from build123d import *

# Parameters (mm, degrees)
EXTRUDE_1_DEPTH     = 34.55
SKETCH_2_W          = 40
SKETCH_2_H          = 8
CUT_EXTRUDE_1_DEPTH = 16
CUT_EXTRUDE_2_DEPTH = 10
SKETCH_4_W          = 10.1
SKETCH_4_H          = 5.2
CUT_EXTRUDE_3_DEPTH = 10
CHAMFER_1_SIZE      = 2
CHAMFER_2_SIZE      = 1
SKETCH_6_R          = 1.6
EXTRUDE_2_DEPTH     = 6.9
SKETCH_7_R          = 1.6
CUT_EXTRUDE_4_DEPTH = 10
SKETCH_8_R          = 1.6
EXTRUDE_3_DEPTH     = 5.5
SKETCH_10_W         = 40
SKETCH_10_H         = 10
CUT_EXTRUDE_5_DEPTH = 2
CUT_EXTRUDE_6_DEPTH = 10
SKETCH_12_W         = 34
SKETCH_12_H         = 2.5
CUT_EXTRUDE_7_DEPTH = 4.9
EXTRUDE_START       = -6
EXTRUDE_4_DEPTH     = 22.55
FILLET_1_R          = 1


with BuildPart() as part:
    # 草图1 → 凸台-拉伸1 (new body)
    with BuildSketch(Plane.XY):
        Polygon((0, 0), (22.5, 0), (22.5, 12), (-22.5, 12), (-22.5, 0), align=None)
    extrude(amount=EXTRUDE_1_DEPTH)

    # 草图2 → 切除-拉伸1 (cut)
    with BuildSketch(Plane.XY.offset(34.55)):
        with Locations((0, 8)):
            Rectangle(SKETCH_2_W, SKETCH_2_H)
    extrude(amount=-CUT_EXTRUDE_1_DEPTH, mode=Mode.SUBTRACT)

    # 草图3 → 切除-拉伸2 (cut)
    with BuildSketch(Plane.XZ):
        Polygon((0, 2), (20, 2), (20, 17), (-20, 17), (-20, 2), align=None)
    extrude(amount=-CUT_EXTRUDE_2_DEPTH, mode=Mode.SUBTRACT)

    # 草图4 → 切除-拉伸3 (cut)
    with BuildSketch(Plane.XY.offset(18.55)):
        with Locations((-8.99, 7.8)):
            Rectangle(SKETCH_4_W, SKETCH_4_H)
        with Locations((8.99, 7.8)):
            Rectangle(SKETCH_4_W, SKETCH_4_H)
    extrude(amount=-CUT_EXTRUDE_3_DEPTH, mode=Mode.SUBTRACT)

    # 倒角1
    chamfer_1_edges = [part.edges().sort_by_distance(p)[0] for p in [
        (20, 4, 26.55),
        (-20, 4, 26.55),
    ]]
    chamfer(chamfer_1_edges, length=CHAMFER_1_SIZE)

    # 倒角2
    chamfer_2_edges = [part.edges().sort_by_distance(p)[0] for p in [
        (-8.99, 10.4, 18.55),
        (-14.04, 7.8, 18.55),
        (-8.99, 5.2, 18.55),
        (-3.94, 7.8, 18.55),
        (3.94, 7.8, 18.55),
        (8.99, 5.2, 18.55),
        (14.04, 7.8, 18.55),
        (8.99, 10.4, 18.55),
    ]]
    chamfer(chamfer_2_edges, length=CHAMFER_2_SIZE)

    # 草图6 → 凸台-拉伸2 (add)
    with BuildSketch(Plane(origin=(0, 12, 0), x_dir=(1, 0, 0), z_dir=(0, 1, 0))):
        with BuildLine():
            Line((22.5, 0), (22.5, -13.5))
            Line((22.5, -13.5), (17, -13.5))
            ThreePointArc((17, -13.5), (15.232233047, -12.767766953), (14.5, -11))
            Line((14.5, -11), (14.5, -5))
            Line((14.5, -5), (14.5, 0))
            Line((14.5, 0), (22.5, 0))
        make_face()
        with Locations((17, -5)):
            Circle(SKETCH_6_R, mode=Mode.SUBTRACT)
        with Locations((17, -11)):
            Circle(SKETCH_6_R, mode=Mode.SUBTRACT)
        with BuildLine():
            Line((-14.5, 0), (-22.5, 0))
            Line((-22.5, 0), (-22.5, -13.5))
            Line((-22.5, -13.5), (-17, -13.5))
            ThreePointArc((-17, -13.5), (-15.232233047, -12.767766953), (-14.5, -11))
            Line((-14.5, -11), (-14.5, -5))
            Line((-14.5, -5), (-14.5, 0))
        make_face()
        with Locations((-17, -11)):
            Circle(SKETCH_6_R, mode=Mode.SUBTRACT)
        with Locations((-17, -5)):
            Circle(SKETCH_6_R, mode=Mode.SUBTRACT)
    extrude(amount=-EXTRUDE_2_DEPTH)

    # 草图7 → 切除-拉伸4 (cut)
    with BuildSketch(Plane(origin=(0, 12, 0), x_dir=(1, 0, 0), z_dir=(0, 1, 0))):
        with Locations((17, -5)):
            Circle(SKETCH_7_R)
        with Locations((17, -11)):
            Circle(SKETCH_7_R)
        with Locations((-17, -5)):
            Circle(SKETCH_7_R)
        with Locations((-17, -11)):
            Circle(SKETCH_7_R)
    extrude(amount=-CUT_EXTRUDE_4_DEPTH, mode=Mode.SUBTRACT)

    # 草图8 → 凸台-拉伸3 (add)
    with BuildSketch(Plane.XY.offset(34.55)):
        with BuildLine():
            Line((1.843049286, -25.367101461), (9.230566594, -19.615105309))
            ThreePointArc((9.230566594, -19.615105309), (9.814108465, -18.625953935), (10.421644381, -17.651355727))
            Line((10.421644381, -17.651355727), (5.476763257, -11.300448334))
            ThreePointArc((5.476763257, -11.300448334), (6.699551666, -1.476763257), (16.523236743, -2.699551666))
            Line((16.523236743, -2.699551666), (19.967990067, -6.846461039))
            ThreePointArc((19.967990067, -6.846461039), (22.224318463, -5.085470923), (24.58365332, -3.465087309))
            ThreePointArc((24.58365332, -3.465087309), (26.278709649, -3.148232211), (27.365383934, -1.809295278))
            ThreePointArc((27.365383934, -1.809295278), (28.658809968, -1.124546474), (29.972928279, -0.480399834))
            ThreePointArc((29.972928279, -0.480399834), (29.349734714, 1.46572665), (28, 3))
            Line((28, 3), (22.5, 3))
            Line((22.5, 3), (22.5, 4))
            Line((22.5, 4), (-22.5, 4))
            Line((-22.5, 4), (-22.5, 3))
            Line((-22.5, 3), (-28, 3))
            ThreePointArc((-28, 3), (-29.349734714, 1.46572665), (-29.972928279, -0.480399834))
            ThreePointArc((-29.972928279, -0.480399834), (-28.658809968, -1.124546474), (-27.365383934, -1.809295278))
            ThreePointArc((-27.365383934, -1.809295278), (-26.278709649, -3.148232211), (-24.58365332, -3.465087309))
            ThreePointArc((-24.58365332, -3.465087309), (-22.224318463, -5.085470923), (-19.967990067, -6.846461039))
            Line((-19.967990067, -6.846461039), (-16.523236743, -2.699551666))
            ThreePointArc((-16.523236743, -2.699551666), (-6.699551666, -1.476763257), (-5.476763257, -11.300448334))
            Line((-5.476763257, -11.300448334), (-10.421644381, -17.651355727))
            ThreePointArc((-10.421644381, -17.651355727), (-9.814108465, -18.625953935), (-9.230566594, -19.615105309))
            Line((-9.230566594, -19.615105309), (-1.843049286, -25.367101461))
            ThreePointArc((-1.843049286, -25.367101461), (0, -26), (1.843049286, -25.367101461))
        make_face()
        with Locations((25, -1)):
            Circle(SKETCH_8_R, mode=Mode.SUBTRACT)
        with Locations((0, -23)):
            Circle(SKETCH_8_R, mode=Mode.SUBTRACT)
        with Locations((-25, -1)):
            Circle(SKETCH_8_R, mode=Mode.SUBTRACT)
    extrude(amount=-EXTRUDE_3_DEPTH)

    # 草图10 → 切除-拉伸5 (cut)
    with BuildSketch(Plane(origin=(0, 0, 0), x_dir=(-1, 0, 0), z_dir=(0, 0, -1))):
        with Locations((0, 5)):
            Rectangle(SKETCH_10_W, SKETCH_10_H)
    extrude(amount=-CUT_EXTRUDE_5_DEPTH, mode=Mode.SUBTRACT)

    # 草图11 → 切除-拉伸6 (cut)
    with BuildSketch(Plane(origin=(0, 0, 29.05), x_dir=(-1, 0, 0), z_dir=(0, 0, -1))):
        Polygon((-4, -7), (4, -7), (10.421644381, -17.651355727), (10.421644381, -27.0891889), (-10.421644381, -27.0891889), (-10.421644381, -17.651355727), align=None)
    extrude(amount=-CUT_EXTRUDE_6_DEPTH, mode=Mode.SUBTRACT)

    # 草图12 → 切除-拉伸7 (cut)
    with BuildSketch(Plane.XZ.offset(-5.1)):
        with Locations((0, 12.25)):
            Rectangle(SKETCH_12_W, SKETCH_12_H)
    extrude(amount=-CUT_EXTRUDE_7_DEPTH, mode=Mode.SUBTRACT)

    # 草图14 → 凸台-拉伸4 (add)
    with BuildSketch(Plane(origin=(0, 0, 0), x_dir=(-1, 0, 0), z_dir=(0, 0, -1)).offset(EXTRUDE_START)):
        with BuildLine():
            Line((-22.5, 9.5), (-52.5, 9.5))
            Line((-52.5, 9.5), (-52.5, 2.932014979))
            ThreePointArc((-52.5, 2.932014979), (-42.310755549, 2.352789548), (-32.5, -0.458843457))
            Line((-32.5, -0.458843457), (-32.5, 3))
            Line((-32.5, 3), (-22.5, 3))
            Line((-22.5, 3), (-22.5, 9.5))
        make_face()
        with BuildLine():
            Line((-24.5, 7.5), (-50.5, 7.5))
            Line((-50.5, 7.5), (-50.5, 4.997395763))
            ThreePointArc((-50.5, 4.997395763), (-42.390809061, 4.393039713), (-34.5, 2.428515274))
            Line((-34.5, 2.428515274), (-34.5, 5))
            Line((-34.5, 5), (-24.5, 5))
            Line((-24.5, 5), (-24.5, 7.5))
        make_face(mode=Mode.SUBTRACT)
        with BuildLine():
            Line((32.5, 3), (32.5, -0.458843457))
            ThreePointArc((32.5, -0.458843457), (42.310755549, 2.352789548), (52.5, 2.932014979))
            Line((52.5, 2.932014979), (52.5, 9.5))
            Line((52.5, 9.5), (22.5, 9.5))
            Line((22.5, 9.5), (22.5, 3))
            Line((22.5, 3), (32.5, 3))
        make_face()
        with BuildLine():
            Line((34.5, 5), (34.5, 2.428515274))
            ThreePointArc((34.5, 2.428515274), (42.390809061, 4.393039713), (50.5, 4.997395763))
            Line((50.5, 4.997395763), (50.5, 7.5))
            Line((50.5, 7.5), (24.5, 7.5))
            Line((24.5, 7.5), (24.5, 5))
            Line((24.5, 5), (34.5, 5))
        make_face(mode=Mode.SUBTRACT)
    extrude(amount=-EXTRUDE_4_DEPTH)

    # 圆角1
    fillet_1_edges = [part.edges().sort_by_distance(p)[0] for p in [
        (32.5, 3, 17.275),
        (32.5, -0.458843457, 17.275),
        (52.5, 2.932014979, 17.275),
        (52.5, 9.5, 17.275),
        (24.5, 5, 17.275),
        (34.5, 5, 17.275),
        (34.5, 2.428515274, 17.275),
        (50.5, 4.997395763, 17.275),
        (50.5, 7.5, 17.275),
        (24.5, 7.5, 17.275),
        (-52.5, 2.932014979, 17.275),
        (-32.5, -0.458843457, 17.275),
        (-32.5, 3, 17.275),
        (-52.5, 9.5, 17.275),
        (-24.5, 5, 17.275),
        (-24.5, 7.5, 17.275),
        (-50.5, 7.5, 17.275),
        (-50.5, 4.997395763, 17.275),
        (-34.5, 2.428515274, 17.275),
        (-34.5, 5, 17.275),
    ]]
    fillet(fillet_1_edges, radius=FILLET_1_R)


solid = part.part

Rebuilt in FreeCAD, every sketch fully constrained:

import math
import FreeCAD as App
import Part
import Sketcher
from FreeCAD import Vector
Q = App.Units.Quantity


def edges_at(feature, points):
    """Names of the edges that pass closest to the given points."""
    edges = feature.Shape.Edges
    near = lambda p: min(range(len(edges)), key=lambda i: edges[i].distToShape(Part.Vertex(*p))[0])
    return sorted({f"Edge{near(p) + 1}" for p in points})

doc = App.newDocument("Part")
body = doc.addObject("PartDesign::Body", "Body")

# Sketch on XY plane
sketch1 = body.newObject("Sketcher::SketchObject", "Sketch")
sketch1.AttachmentSupport = (doc.getObject("XY_Plane"), [""])
sketch1.MapMode = "FlatFace"
sketch1.addGeometry(Part.LineSegment(Vector(22, 0, 0), Vector(22, 12, 0)), False)
sketch1.addGeometry(Part.LineSegment(Vector(22, 12, 0), Vector(-22, 12, 0)), False)
sketch1.addGeometry(Part.LineSegment(Vector(-22, 12, 0), Vector(-22, 0, 0)), False)
sketch1.addGeometry(Part.LineSegment(Vector(-22, 0, 0), Vector(22, 0, 0)), False)
sketch1.addConstraint(Sketcher.Constraint("Coincident", 0, 2, 1, 1))
sketch1.addConstraint(Sketcher.Constraint("Coincident", 1, 2, 2, 1))
sketch1.addConstraint(Sketcher.Constraint("Coincident", 2, 2, 3, 1))
sketch1.addConstraint(Sketcher.Constraint("Coincident", 3, 2, 0, 1))
sketch1.addConstraint(Sketcher.Constraint("Vertical", 0))
sketch1.addConstraint(Sketcher.Constraint("Horizontal", 1))
sketch1.addConstraint(Sketcher.Constraint("Vertical", 2))
sketch1.addConstraint(Sketcher.Constraint("Horizontal", 3))
sketch1.addConstraint(Sketcher.Constraint("Symmetric", 2, 2, 3, 2, -1, 1))
sketch1.addConstraint(Sketcher.Constraint("DistanceX", 1, 2, 1, 1, Q("45 mm")))
sketch1.addConstraint(Sketcher.Constraint("DistanceY", 0, 1, 0, 2, Q("12 mm")))
pad1 = body.newObject("PartDesign::Pad", "Pad")
pad1.Profile = sketch1
pad1.Length = 34.55

# Sketch on XY plane
sketch2 = body.newObject("Sketcher::SketchObject", "Sketch001")
sketch2.AttachmentSupport = (doc.getObject("XY_Plane"), [""])
sketch2.MapMode = "FlatFace"
sketch2.AttachmentOffset = App.Placement(Vector(0, 0, 34.55), App.Rotation())
sketch2.addGeometry(Part.LineSegment(Vector(-20, 12, 0), Vector(-20, 4, 0)), False)
sketch2.addGeometry(Part.LineSegment(Vector(-20, 4, 0), Vector(20, 4, 0)), False)
sketch2.addGeometry(Part.LineSegment(Vector(20, 4, 0), Vector(20, 12, 0)), False)
sketch2.addGeometry(Part.LineSegment(Vector(20, 12, 0), Vector(-20, 12, 0)), False)
sketch2.addConstraint(Sketcher.Constraint("Coincident", 0, 2, 1, 1))
sketch2.addConstraint(Sketcher.Constraint("Coincident", 1, 2, 2, 1))
sketch2.addConstraint(Sketcher.Constraint("Coincident", 2, 2, 3, 1))
sketch2.addConstraint(Sketcher.Constraint("Coincident", 3, 2, 0, 1))
sketch2.addConstraint(Sketcher.Constraint("Vertical", 0))
sketch2.addConstraint(Sketcher.Constraint("Horizontal", 1))
sketch2.addConstraint(Sketcher.Constraint("Vertical", 2))
sketch2.addConstraint(Sketcher.Constraint("Horizontal", 3))
sketch2.addConstraint(Sketcher.Constraint("DistanceX", 1, 1, 1, 2, Q("40 mm")))
sketch2.addConstraint(Sketcher.Constraint("DistanceY", 0, 2, 0, 1, Q("8 mm")))
sketch2.addConstraint(Sketcher.Constraint("DistanceX", 0, 2, -1, 1, Q("20 mm")))
sketch2.addConstraint(Sketcher.Constraint("DistanceY", -1, 1, 0, 2, Q("4 mm")))
pocket1 = body.newObject("PartDesign::Pocket", "Pocket")
pocket1.Profile = sketch2
pocket1.Length = 16

# Sketch on XZ plane
sketch3 = body.newObject("Sketcher::SketchObject", "Sketch002")
sketch3.AttachmentSupport = (doc.getObject("XZ_Plane"), [""])
sketch3.MapMode = "FlatFace"
sketch3.addGeometry(Part.LineSegment(Vector(20, 2, 0), Vector(20, 17, 0)), False)
sketch3.addGeometry(Part.LineSegment(Vector(20, 17, 0), Vector(-20, 17, 0)), False)
sketch3.addGeometry(Part.LineSegment(Vector(-20, 17, 0), Vector(-20, 2, 0)), False)
sketch3.addGeometry(Part.LineSegment(Vector(-20, 2, 0), Vector(20, 2, 0)), False)
sketch3.addConstraint(Sketcher.Constraint("Coincident", 0, 2, 1, 1))
sketch3.addConstraint(Sketcher.Constraint("Coincident", 1, 2, 2, 1))
sketch3.addConstraint(Sketcher.Constraint("Coincident", 2, 2, 3, 1))
sketch3.addConstraint(Sketcher.Constraint("Coincident", 3, 2, 0, 1))
sketch3.addConstraint(Sketcher.Constraint("Vertical", 0))
sketch3.addConstraint(Sketcher.Constraint("Horizontal", 1))
sketch3.addConstraint(Sketcher.Constraint("Vertical", 2))
sketch3.addConstraint(Sketcher.Constraint("Horizontal", 3))
sketch3.addConstraint(Sketcher.Constraint("DistanceX", 1, 2, 1, 1, Q("40 mm")))
sketch3.addConstraint(Sketcher.Constraint("DistanceY", 0, 1, 0, 2, Q("15 mm")))
sketch3.addConstraint(Sketcher.Constraint("DistanceX", -1, 1, 0, 2, Q("20 mm")))
sketch3.addConstraint(Sketcher.Constraint("DistanceY", -1, 1, 0, 2, Q("17 mm")))
pocket2 = body.newObject("PartDesign::Pocket", "Pocket001")
pocket2.Profile = sketch3
pocket2.Length = 10

# Sketch on XY plane
sketch4 = body.newObject("Sketcher::SketchObject", "Sketch003")
sketch4.AttachmentSupport = (doc.getObject("XY_Plane"), [""])
sketch4.MapMode = "FlatFace"
sketch4.AttachmentOffset = App.Placement(Vector(0, 0, 18.55), App.Rotation())
sketch4.addGeometry(Part.LineSegment(Vector(-14, 10, 0), Vector(-14, 5, 0)), False)
sketch4.addGeometry(Part.LineSegment(Vector(-14, 5, 0), Vector(-4, 5, 0)), False)
sketch4.addGeometry(Part.LineSegment(Vector(-4, 5, 0), Vector(-4, 10, 0)), False)
sketch4.addGeometry(Part.LineSegment(Vector(-4, 10, 0), Vector(-14, 10, 0)), False)
sketch4.addGeometry(Part.LineSegment(Vector(4, 10, 0), Vector(4, 5, 0)), False)
sketch4.addGeometry(Part.LineSegment(Vector(4, 5, 0), Vector(14, 5, 0)), False)
sketch4.addGeometry(Part.LineSegment(Vector(14, 5, 0), Vector(14, 10, 0)), False)
sketch4.addGeometry(Part.LineSegment(Vector(14, 10, 0), Vector(4, 10, 0)), False)
sketch4.addConstraint(Sketcher.Constraint("Coincident", 0, 2, 1, 1))
sketch4.addConstraint(Sketcher.Constraint("Coincident", 1, 2, 2, 1))
sketch4.addConstraint(Sketcher.Constraint("Coincident", 2, 2, 3, 1))
sketch4.addConstraint(Sketcher.Constraint("Coincident", 3, 2, 0, 1))
sketch4.addConstraint(Sketcher.Constraint("Coincident", 4, 2, 5, 1))
sketch4.addConstraint(Sketcher.Constraint("Coincident", 5, 2, 6, 1))
sketch4.addConstraint(Sketcher.Constraint("Coincident", 6, 2, 7, 1))
sketch4.addConstraint(Sketcher.Constraint("Coincident", 7, 2, 4, 1))
sketch4.addConstraint(Sketcher.Constraint("Vertical", 0))
sketch4.addConstraint(Sketcher.Constraint("Horizontal", 1))
sketch4.addConstraint(Sketcher.Constraint("Vertical", 2))
sketch4.addConstraint(Sketcher.Constraint("Horizontal", 3))
sketch4.addConstraint(Sketcher.Constraint("Vertical", 4))
sketch4.addConstraint(Sketcher.Constraint("Horizontal", 5))
sketch4.addConstraint(Sketcher.Constraint("Vertical", 6))
sketch4.addConstraint(Sketcher.Constraint("Horizontal", 7))
sketch4.addConstraint(Sketcher.Constraint("Symmetric", 1, 2, 4, 2, -2))
sketch4.addConstraint(Sketcher.Constraint("Symmetric", 3, 2, 6, 2, -2))
sketch4.addConstraint(Sketcher.Constraint("DistanceX", 1, 1, 1, 2, Q("10.1 mm")))
sketch4.addConstraint(Sketcher.Constraint("DistanceY", 0, 2, 0, 1, Q("5.2 mm")))
sketch4.addConstraint(Sketcher.Constraint("DistanceY", -1, 1, 0, 2, Q("5.2 mm")))
sketch4.addConstraint(Sketcher.Constraint("DistanceX", 0, 2, -1, 1, Q("14.04 mm")))
pocket3 = body.newObject("PartDesign::Pocket", "Pocket002")
pocket3.Profile = sketch4
pocket3.Length = 10
doc.recompute()

chamfer = body.newObject("PartDesign::Chamfer", "Chamfer")
chamfer.Base = (pocket3, edges_at(pocket3, [(20, 4, 26.55), (-20, 4, 26.55)]))
chamfer.Size = 2
doc.recompute()

chamfer2 = body.newObject("PartDesign::Chamfer", "Chamfer001")
chamfer2.Base = (chamfer, edges_at(chamfer, [
    (-8.99, 10.4, 18.55),
    (-14.04, 7.8, 18.55),
    (-8.99, 5.2, 18.55),
    (-3.94, 7.8, 18.55),
    (3.94, 7.8, 18.55),
    (8.99, 5.2, 18.55),
    (14.04, 7.8, 18.55),
    (8.99, 10.4, 18.55),
]))
chamfer2.Size = 1

# Sketch on XZ plane
sketch5 = body.newObject("Sketcher::SketchObject", "Sketch004")
sketch5.AttachmentSupport = (doc.getObject("XZ_Plane"), [""])
sketch5.MapMode = "FlatFace"
sketch5.AttachmentOffset = App.Placement(Vector(0, 0, -12), App.Rotation())
sketch5.addGeometry(Part.LineSegment(Vector(22.5, 13.5, 0), Vector(22.5, 0, 0)), False)
sketch5.addGeometry(Part.LineSegment(Vector(22.5, 0, 0), Vector(14.5, 0, 0)), False)
sketch5.addGeometry(Part.LineSegment(Vector(14.5, 0, 0), Vector(14.5, 11, 0)), False)
sketch5.addGeometry(Part.ArcOfCircle(Part.Circle(Vector(17, 11, 0), Vector(0, 0, 1), 2.5), math.radians(90), math.radians(180)), False)
sketch5.addGeometry(Part.LineSegment(Vector(17, 13.5, 0), Vector(22.5, 13.5, 0)), False)
sketch5.addGeometry(Part.Circle(Vector(17, 11, 0), Vector(0, 0, 1), 1.6), False)
sketch5.addGeometry(Part.Circle(Vector(17, 5, 0), Vector(0, 0, 1), 1.6), False)
sketch5.addGeometry(Part.LineSegment(Vector(-14.5, 0, 0), Vector(-22.5, 0, 0)), False)
sketch5.addGeometry(Part.LineSegment(Vector(-22.5, 0, 0), Vector(-22.5, 13.5, 0)), False)
sketch5.addGeometry(Part.LineSegment(Vector(-22.5, 13.5, 0), Vector(-17, 13.5, 0)), False)
sketch5.addGeometry(Part.ArcOfCircle(Part.Circle(Vector(-17, 11, 0), Vector(0, 0, 1), 2.5), math.radians(0), math.radians(90)), False)
sketch5.addGeometry(Part.LineSegment(Vector(-14.5, 11, 0), Vector(-14.5, 0, 0)), False)
sketch5.addGeometry(Part.Circle(Vector(-17, 11, 0), Vector(0, 0, 1), 1.6), False)
sketch5.addGeometry(Part.Circle(Vector(-17, 5, 0), Vector(0, 0, 1), 1.6), False)
sketch5.addConstraint(Sketcher.Constraint("Coincident", 0, 2, 1, 1))
sketch5.addConstraint(Sketcher.Constraint("Coincident", 1, 2, 2, 1))
sketch5.addConstraint(Sketcher.Constraint("Tangent", 2, 2, 3, 2))
sketch5.addConstraint(Sketcher.Constraint("Tangent", 3, 1, 4, 1))
sketch5.addConstraint(Sketcher.Constraint("Coincident", 4, 2, 0, 1))
sketch5.addConstraint(Sketcher.Constraint("Coincident", 7, 2, 8, 1))
sketch5.addConstraint(Sketcher.Constraint("Coincident", 8, 2, 9, 1))
sketch5.addConstraint(Sketcher.Constraint("Tangent", 9, 2, 10, 2))
sketch5.addConstraint(Sketcher.Constraint("Tangent", 10, 1, 11, 1))
sketch5.addConstraint(Sketcher.Constraint("Coincident", 11, 2, 7, 1))
sketch5.addConstraint(Sketcher.Constraint("Vertical", 0))
sketch5.addConstraint(Sketcher.Constraint("Horizontal", 1))
sketch5.addConstraint(Sketcher.Constraint("Vertical", 2))
sketch5.addConstraint(Sketcher.Constraint("Horizontal", 4))
sketch5.addConstraint(Sketcher.Constraint("Horizontal", 7))
sketch5.addConstraint(Sketcher.Constraint("Vertical", 8))
sketch5.addConstraint(Sketcher.Constraint("Horizontal", 9))
sketch5.addConstraint(Sketcher.Constraint("Vertical", 11))
sketch5.addConstraint(Sketcher.Constraint("Coincident", 5, 3, 3, 3))
sketch5.addConstraint(Sketcher.Constraint("Coincident", 12, 3, 10, 3))
sketch5.addConstraint(Sketcher.Constraint("Equal", 5, 6))
sketch5.addConstraint(Sketcher.Constraint("Equal", 3, 10))
sketch5.addConstraint(Sketcher.Constraint("Equal", 6, 12))
sketch5.addConstraint(Sketcher.Constraint("Equal", 12, 13))
sketch5.addConstraint(Sketcher.Constraint("Symmetric", 0, 2, 7, 2, -1, 1))
sketch5.addConstraint(Sketcher.Constraint("Symmetric", 3, 3, 10, 3, -2))
sketch5.addConstraint(Sketcher.Constraint("Symmetric", 6, 3, 13, 3, -2))
sketch5.addConstraint(Sketcher.Constraint("PointOnObject", 0, 2, -1))
sketch5.addConstraint(Sketcher.Constraint("Vertical", 5, 3, 6, 3))
sketch5.addConstraint(Sketcher.Constraint("Diameter", 5, Q("3.2 mm")))
sketch5.addConstraint(Sketcher.Constraint("Radius", 3, Q("2.5 mm")))
sketch5.addConstraint(Sketcher.Constraint("DistanceX", 1, 2, 1, 1, Q("8 mm")))
sketch5.addConstraint(Sketcher.Constraint("DistanceY", 2, 1, 2, 2, Q("11 mm")))
sketch5.addConstraint(Sketcher.Constraint("DistanceX", -1, 1, 3, 3, Q("17 mm")))
sketch5.addConstraint(Sketcher.Constraint("DistanceY", -1, 1, 6, 3, Q("5 mm")))
pad2 = body.newObject("PartDesign::Pad", "Pad001")
pad2.Profile = sketch5
pad2.Length = 6.9

# Sketch on XZ plane
sketch6 = body.newObject("Sketcher::SketchObject", "Sketch005")
sketch6.AttachmentSupport = (doc.getObject("XZ_Plane"), [""])
sketch6.MapMode = "FlatFace"
sketch6.AttachmentOffset = App.Placement(Vector(0, 0, -12), App.Rotation())
sketch6.addGeometry(Part.Circle(Vector(17, 5, 0), Vector(0, 0, 1), 1.6), False)
sketch6.addGeometry(Part.Circle(Vector(17, 11, 0), Vector(0, 0, 1), 1.6), False)
sketch6.addGeometry(Part.Circle(Vector(-17, 5, 0), Vector(0, 0, 1), 1.6), False)
sketch6.addGeometry(Part.Circle(Vector(-17, 11, 0), Vector(0, 0, 1), 1.6), False)
sketch6.addConstraint(Sketcher.Constraint("Equal", 0, 1))
sketch6.addConstraint(Sketcher.Constraint("Equal", 1, 2))
sketch6.addConstraint(Sketcher.Constraint("Equal", 2, 3))
sketch6.addConstraint(Sketcher.Constraint("Symmetric", 0, 3, 2, 3, -2))
sketch6.addConstraint(Sketcher.Constraint("Symmetric", 1, 3, 3, 3, -2))
sketch6.addConstraint(Sketcher.Constraint("Vertical", 0, 3, 1, 3))
sketch6.addConstraint(Sketcher.Constraint("Diameter", 0, Q("3.2 mm")))
sketch6.addConstraint(Sketcher.Constraint("DistanceX", -1, 1, 0, 3, Q("17 mm")))
sketch6.addConstraint(Sketcher.Constraint("DistanceY", -1, 1, 0, 3, Q("5 mm")))
sketch6.addConstraint(Sketcher.Constraint("DistanceY", -1, 1, 1, 3, Q("11 mm")))
pocket4 = body.newObject("PartDesign::Pocket", "Pocket003")
pocket4.Profile = sketch6
pocket4.Length = 10
pocket4.Reversed = True

# Sketch on XY plane
sketch7 = body.newObject("Sketcher::SketchObject", "Sketch006")
sketch7.AttachmentSupport = (doc.getObject("XY_Plane"), [""])
sketch7.MapMode = "FlatFace"
sketch7.AttachmentOffset = App.Placement(Vector(0, 0, 34.55), App.Rotation())
sketch7.addGeometry(Part.LineSegment(Vector(1.8, -25.4, 0), Vector(9.2, -19.6, 0)), False)
sketch7.addGeometry(Part.ArcOfCircle(Part.Circle(Vector(50, -43, 0), Vector(0, 0, 1), 47), math.radians(147.36), math.radians(150.16)), False)
sketch7.addGeometry(Part.LineSegment(Vector(10.4, -17.7, 0), Vector(5.5, -11.3, 0)), False)
sketch7.addGeometry(Part.ArcOfCircle(Part.Circle(Vector(11, -7, 0), Vector(0, 0, 1), 7), math.radians(38), math.radians(218)), False)
sketch7.addGeometry(Part.LineSegment(Vector(16.5, -2.7, 0), Vector(20, -6.8, 0)), False)
sketch7.addGeometry(Part.ArcOfCircle(Part.Circle(Vector(50, -43, 0), Vector(0, 0, 1), 47), math.radians(122.74), math.radians(129.72)), False)
sketch7.addGeometry(Part.ArcOfCircle(Part.Circle(Vector(25, -1, 0), Vector(0, 0, 1), 2.5), math.radians(-100), math.radians(-19)), False)
sketch7.addGeometry(Part.ArcOfCircle(Part.Circle(Vector(50, -43, 0), Vector(0, 0, 1), 47), math.radians(115.22), math.radians(118.79)), False)
sketch7.addGeometry(Part.ArcOfCircle(Part.Circle(Vector(25, -1, 0), Vector(0, 0, 1), 5), math.radians(6), math.radians(53)), False)
sketch7.addGeometry(Part.LineSegment(Vector(28, 3, 0), Vector(22.5, 3, 0)), False)
sketch7.addGeometry(Part.LineSegment(Vector(22.5, 3, 0), Vector(22.5, 4, 0)), False)
sketch7.addGeometry(Part.LineSegment(Vector(22.5, 4, 0), Vector(-22.5, 4, 0)), False)
sketch7.addGeometry(Part.LineSegment(Vector(-22.5, 4, 0), Vector(-22.5, 3, 0)), False)
sketch7.addGeometry(Part.LineSegment(Vector(-22.5, 3, 0), Vector(-28, 3, 0)), False)
sketch7.addGeometry(Part.ArcOfCircle(Part.Circle(Vector(-25, -1, 0), Vector(0, 0, 1), 5), math.radians(127), math.radians(174)), False)
sketch7.addGeometry(Part.ArcOfCircle(Part.Circle(Vector(-50, -43, 0), Vector(0, 0, 1), 47), math.radians(61.21), math.radians(64.78)), False)
sketch7.addGeometry(Part.ArcOfCircle(Part.Circle(Vector(-25, -1, 0), Vector(0, 0, 1), 2.5), math.radians(-161), math.radians(-80)), False)
sketch7.addGeometry(Part.ArcOfCircle(Part.Circle(Vector(-50, -43, 0), Vector(0, 0, 1), 47), math.radians(50.28), math.radians(57.26)), False)
sketch7.addGeometry(Part.LineSegment(Vector(-20, -6.8, 0), Vector(-16.5, -2.7, 0)), False)
sketch7.addGeometry(Part.ArcOfCircle(Part.Circle(Vector(-11, -7, 0), Vector(0, 0, 1), 7), math.radians(-38), math.radians(142)), False)
sketch7.addGeometry(Part.LineSegment(Vector(-5.5, -11.3, 0), Vector(-10.4, -17.7, 0)), False)
sketch7.addGeometry(Part.ArcOfCircle(Part.Circle(Vector(-50, -43, 0), Vector(0, 0, 1), 47), math.radians(29.84), math.radians(32.64)), False)
sketch7.addGeometry(Part.LineSegment(Vector(-9.2, -19.6, 0), Vector(-1.8, -25.4, 0)), False)
sketch7.addGeometry(Part.ArcOfCircle(Part.Circle(Vector(0, -23, 0), Vector(0, 0, 1), 3), math.radians(-128), math.radians(-52)), False)
sketch7.addGeometry(Part.Circle(Vector(0, -23, 0), Vector(0, 0, 1), 1.6), False)
sketch7.addGeometry(Part.Circle(Vector(-25, -1, 0), Vector(0, 0, 1), 1.6), False)
sketch7.addGeometry(Part.Circle(Vector(25, -1, 0), Vector(0, 0, 1), 1.6), False)
sketch7.addConstraint(Sketcher.Constraint("Coincident", 0, 2, 1, 2))
sketch7.addConstraint(Sketcher.Constraint("Coincident", 1, 1, 2, 1))
sketch7.addConstraint(Sketcher.Constraint("Tangent", 2, 2, 3, 2))
sketch7.addConstraint(Sketcher.Constraint("Coincident", 3, 1, 4, 1))
sketch7.addConstraint(Sketcher.Constraint("Coincident", 4, 2, 5, 2))
sketch7.addConstraint(Sketcher.Constraint("Coincident", 5, 1, 6, 1))
sketch7.addConstraint(Sketcher.Constraint("Coincident", 6, 2, 7, 2))
sketch7.addConstraint(Sketcher.Constraint("Coincident", 7, 1, 8, 1))
sketch7.addConstraint(Sketcher.Constraint("Coincident", 8, 2, 9, 1))
sketch7.addConstraint(Sketcher.Constraint("Coincident", 9, 2, 10, 1))
sketch7.addConstraint(Sketcher.Constraint("Coincident", 10, 2, 11, 1))
sketch7.addConstraint(Sketcher.Constraint("Coincident", 11, 2, 12, 1))
sketch7.addConstraint(Sketcher.Constraint("Coincident", 12, 2, 13, 1))
sketch7.addConstraint(Sketcher.Constraint("Coincident", 13, 2, 14, 1))
sketch7.addConstraint(Sketcher.Constraint("Coincident", 14, 2, 15, 2))
sketch7.addConstraint(Sketcher.Constraint("Coincident", 15, 1, 16, 1))
sketch7.addConstraint(Sketcher.Constraint("Coincident", 16, 2, 17, 2))
sketch7.addConstraint(Sketcher.Constraint("Coincident", 17, 1, 18, 1))
sketch7.addConstraint(Sketcher.Constraint("Coincident", 18, 2, 19, 2))
sketch7.addConstraint(Sketcher.Constraint("Tangent", 19, 1, 20, 1))
sketch7.addConstraint(Sketcher.Constraint("Coincident", 20, 2, 21, 2))
sketch7.addConstraint(Sketcher.Constraint("Coincident", 21, 1, 22, 1))
sketch7.addConstraint(Sketcher.Constraint("Tangent", 22, 2, 23, 1))
sketch7.addConstraint(Sketcher.Constraint("Tangent", 23, 2, 0, 1))
sketch7.addConstraint(Sketcher.Constraint("Horizontal", 9))
sketch7.addConstraint(Sketcher.Constraint("Vertical", 10))
sketch7.addConstraint(Sketcher.Constraint("Horizontal", 11))
sketch7.addConstraint(Sketcher.Constraint("Vertical", 12))
sketch7.addConstraint(Sketcher.Constraint("Horizontal", 13))
sketch7.addConstraint(Sketcher.Constraint("Coincident", 5, 3, 1, 3))
sketch7.addConstraint(Sketcher.Constraint("Coincident", 7, 3, 1, 3))
sketch7.addConstraint(Sketcher.Constraint("Coincident", 8, 3, 6, 3))
sketch7.addConstraint(Sketcher.Constraint("Coincident", 16, 3, 14, 3))
sketch7.addConstraint(Sketcher.Constraint("Coincident", 17, 3, 15, 3))
sketch7.addConstraint(Sketcher.Constraint("Coincident", 21, 3, 15, 3))
sketch7.addConstraint(Sketcher.Constraint("Coincident", 24, 3, 23, 3))
sketch7.addConstraint(Sketcher.Constraint("Coincident", 25, 3, 14, 3))
sketch7.addConstraint(Sketcher.Constraint("Coincident", 26, 3, 6, 3))
sketch7.addConstraint(Sketcher.Constraint("Equal", 5, 7))
sketch7.addConstraint(Sketcher.Constraint("Equal", 8, 14))
sketch7.addConstraint(Sketcher.Constraint("Equal", 7, 15))
sketch7.addConstraint(Sketcher.Constraint("Equal", 6, 16))
sketch7.addConstraint(Sketcher.Constraint("Equal", 15, 17))
sketch7.addConstraint(Sketcher.Constraint("Equal", 3, 19))
sketch7.addConstraint(Sketcher.Constraint("Equal", 1, 21))
sketch7.addConstraint(Sketcher.Constraint("Equal", 24, 25))
sketch7.addConstraint(Sketcher.Constraint("Equal", 25, 26))
sketch7.addConstraint(Sketcher.Constraint("Symmetric", 6, 3, 14, 3, -2))
sketch7.addConstraint(Sketcher.Constraint("Symmetric", 1, 3, 15, 3, -2))
sketch7.addConstraint(Sketcher.Constraint("Symmetric", 3, 3, 19, 3, -2))
sketch7.addConstraint(Sketcher.Constraint("Symmetric", 9, 2, 12, 2, -2))
sketch7.addConstraint(Sketcher.Constraint("Symmetric", 22, 2, 23, 2, -2))
sketch7.addConstraint(Sketcher.Constraint("Perpendicular", 0, 2))
sketch7.addConstraint(Sketcher.Constraint("Perpendicular", 20, 22))
sketch7.addConstraint(Sketcher.Constraint("Horizontal", 4, 2, 17, 1))
sketch7.addConstraint(Sketcher.Constraint("Horizontal", 3, 1, 18, 2))
sketch7.addConstraint(Sketcher.Constraint("Radius", 3, Q("7 mm")))
sketch7.addConstraint(Sketcher.Constraint("Radius", 5, Q("47 mm")))
sketch7.addConstraint(Sketcher.Constraint("Radius", 8, Q("5 mm")))
sketch7.addConstraint(Sketcher.Constraint("Radius", 23, Q("3 mm")))
sketch7.addConstraint(Sketcher.Constraint("Diameter", 24, Q("3.2 mm")))
sketch7.addConstraint(Sketcher.Constraint("Radius", 6, Q("2.5 mm")))
sketch7.addConstraint(Sketcher.Constraint("DistanceX", 11, 2, 11, 1, Q("45 mm")))
sketch7.addConstraint(Sketcher.Constraint("DistanceY", 10, 1, 10, 2, Q("1 mm")))
sketch7.addConstraint(Sketcher.Constraint("DistanceX", 9, 2, 9, 1, Q("5.5 mm")))
sketch7.addConstraint(Sketcher.Constraint("DistanceY", 1, 3, -1, 1, Q("42.999999 mm")))
sketch7.addConstraint(Sketcher.Constraint("DistanceX", -1, 1, 3, 3, Q("11 mm")))
sketch7.addConstraint(Sketcher.Constraint("DistanceY", 3, 3, -1, 1, Q("7 mm")))
sketch7.addConstraint(Sketcher.Constraint("DistanceX", -1, 1, 5, 3, Q("50 mm")))
sketch7.addConstraint(Sketcher.Constraint("DistanceX", -1, 1, 6, 3, Q("25 mm")))
sketch7.addConstraint(Sketcher.Constraint("DistanceY", 6, 3, -1, 1, Q("1 mm")))
sketch7.addConstraint(Sketcher.Constraint("DistanceY", 23, 3, -1, 1, Q("23 mm")))
sketch7.addConstraint(Sketcher.Constraint("Radius", 1, Q("46.999997 mm")))
sketch7.addConstraint(Sketcher.Constraint("DistanceY", 22, 2, -1, 1, Q("25.367101 mm")))
sketch7.addConstraint(Sketcher.Constraint("DistanceY", 3, 1, -1, 1, Q("2.699552 mm")))
sketch7.addConstraint(Sketcher.Constraint("DistanceX", -1, 1, 4, 2, Q("19.96799 mm")))
pad3 = body.newObject("PartDesign::Pad", "Pad002")
pad3.Profile = sketch7
pad3.Length = 5.5
pad3.Reversed = True

# Sketch on XY plane
sketch8 = body.newObject("Sketcher::SketchObject", "Sketch007")
sketch8.AttachmentSupport = (doc.getObject("XY_Plane"), [""])
sketch8.MapMode = "FlatFace"
sketch8.addGeometry(Part.LineSegment(Vector(20, 10, 0), Vector(20, 0, 0)), False)
sketch8.addGeometry(Part.LineSegment(Vector(20, 0, 0), Vector(-20, 0, 0)), False)
sketch8.addGeometry(Part.LineSegment(Vector(-20, 0, 0), Vector(-20, 10, 0)), False)
sketch8.addGeometry(Part.LineSegment(Vector(-20, 10, 0), Vector(20, 10, 0)), False)
sketch8.addConstraint(Sketcher.Constraint("Coincident", 0, 2, 1, 1))
sketch8.addConstraint(Sketcher.Constraint("Coincident", 1, 2, 2, 1))
sketch8.addConstraint(Sketcher.Constraint("Coincident", 2, 2, 3, 1))
sketch8.addConstraint(Sketcher.Constraint("Coincident", 3, 2, 0, 1))
sketch8.addConstraint(Sketcher.Constraint("Vertical", 0))
sketch8.addConstraint(Sketcher.Constraint("Horizontal", 1))
sketch8.addConstraint(Sketcher.Constraint("Vertical", 2))
sketch8.addConstraint(Sketcher.Constraint("Horizontal", 3))
sketch8.addConstraint(Sketcher.Constraint("Symmetric", 0, 2, 1, 2, -1, 1))
sketch8.addConstraint(Sketcher.Constraint("DistanceX", 1, 2, 1, 1, Q("40 mm")))
sketch8.addConstraint(Sketcher.Constraint("DistanceY", 0, 2, 0, 1, Q("10 mm")))
pocket5 = body.newObject("PartDesign::Pocket", "Pocket004")
pocket5.Profile = sketch8
pocket5.Length = 2
pocket5.Reversed = True

# Sketch on XY plane
sketch9 = body.newObject("Sketcher::SketchObject", "Sketch008")
sketch9.AttachmentSupport = (doc.getObject("XY_Plane"), [""])
sketch9.MapMode = "FlatFace"
sketch9.AttachmentOffset = App.Placement(Vector(0, 0, 29.05), App.Rotation())
sketch9.addGeometry(Part.LineSegment(Vector(-4, -7, 0), Vector(4, -7, 0)), False)
sketch9.addGeometry(Part.LineSegment(Vector(4, -7, 0), Vector(10, -18, 0)), False)
sketch9.addGeometry(Part.LineSegment(Vector(10, -18, 0), Vector(10, -27, 0)), False)
sketch9.addGeometry(Part.LineSegment(Vector(10, -27, 0), Vector(-10, -27, 0)), False)
sketch9.addGeometry(Part.LineSegment(Vector(-10, -27, 0), Vector(-10, -18, 0)), False)
sketch9.addGeometry(Part.LineSegment(Vector(-10, -18, 0), Vector(-4, -7, 0)), False)
sketch9.addConstraint(Sketcher.Constraint("Coincident", 0, 2, 1, 1))
sketch9.addConstraint(Sketcher.Constraint("Coincident", 1, 2, 2, 1))
sketch9.addConstraint(Sketcher.Constraint("Coincident", 2, 2, 3, 1))
sketch9.addConstraint(Sketcher.Constraint("Coincident", 3, 2, 4, 1))
sketch9.addConstraint(Sketcher.Constraint("Coincident", 4, 2, 5, 1))
sketch9.addConstraint(Sketcher.Constraint("Coincident", 5, 2, 0, 1))
sketch9.addConstraint(Sketcher.Constraint("Horizontal", 0))
sketch9.addConstraint(Sketcher.Constraint("Vertical", 2))
sketch9.addConstraint(Sketcher.Constraint("Horizontal", 3))
sketch9.addConstraint(Sketcher.Constraint("Vertical", 4))
sketch9.addConstraint(Sketcher.Constraint("Symmetric", 1, 2, 4, 2, -2))
sketch9.addConstraint(Sketcher.Constraint("Equal", 1, 5))
sketch9.addConstraint(Sketcher.Constraint("DistanceX", 0, 1, 0, 2, Q("8 mm")))
sketch9.addConstraint(Sketcher.Constraint("DistanceY", 0, 2, -1, 1, Q("7 mm")))
sketch9.addConstraint(Sketcher.Constraint("Distance", 1, Q("12.437399 mm")))
sketch9.addConstraint(Sketcher.Constraint("DistanceX", 3, 2, 3, 1, Q("20.843289 mm")))
sketch9.addConstraint(Sketcher.Constraint("DistanceY", 2, 2, 2, 1, Q("9.437833 mm")))
pocket6 = body.newObject("PartDesign::Pocket", "Pocket005")
pocket6.Profile = sketch9
pocket6.Length = 10
pocket6.Reversed = True

# Sketch on XZ plane
sketch10 = body.newObject("Sketcher::SketchObject", "Sketch009")
sketch10.AttachmentSupport = (doc.getObject("XZ_Plane"), [""])
sketch10.MapMode = "FlatFace"
sketch10.AttachmentOffset = App.Placement(Vector(0, 0, -5.1), App.Rotation())
sketch10.addGeometry(Part.LineSegment(Vector(-17, 13.5, 0), Vector(-17, 11, 0)), False)
sketch10.addGeometry(Part.LineSegment(Vector(-17, 11, 0), Vector(17, 11, 0)), False)
sketch10.addGeometry(Part.LineSegment(Vector(17, 11, 0), Vector(17, 13.5, 0)), False)
sketch10.addGeometry(Part.LineSegment(Vector(17, 13.5, 0), Vector(-17, 13.5, 0)), False)
sketch10.addConstraint(Sketcher.Constraint("Coincident", 0, 2, 1, 1))
sketch10.addConstraint(Sketcher.Constraint("Coincident", 1, 2, 2, 1))
sketch10.addConstraint(Sketcher.Constraint("Coincident", 2, 2, 3, 1))
sketch10.addConstraint(Sketcher.Constraint("Coincident", 3, 2, 0, 1))
sketch10.addConstraint(Sketcher.Constraint("Vertical", 0))
sketch10.addConstraint(Sketcher.Constraint("Horizontal", 1))
sketch10.addConstraint(Sketcher.Constraint("Vertical", 2))
sketch10.addConstraint(Sketcher.Constraint("Horizontal", 3))
sketch10.addConstraint(Sketcher.Constraint("DistanceX", 1, 1, 1, 2, Q("34 mm")))
sketch10.addConstraint(Sketcher.Constraint("DistanceY", 0, 2, 0, 1, Q("2.5 mm")))
sketch10.addConstraint(Sketcher.Constraint("DistanceX", 0, 2, -1, 1, Q("17 mm")))
sketch10.addConstraint(Sketcher.Constraint("DistanceY", -1, 1, 0, 2, Q("11 mm")))
pocket7 = body.newObject("PartDesign::Pocket", "Pocket006")
pocket7.Profile = sketch10
pocket7.Length = 4.9

# Sketch on XY plane
sketch11 = body.newObject("Sketcher::SketchObject", "Sketch010")
sketch11.AttachmentSupport = (doc.getObject("XY_Plane"), [""])
sketch11.MapMode = "FlatFace"
sketch11.AttachmentOffset = App.Placement(Vector(0, 0, 6), App.Rotation())
sketch11.addGeometry(Part.LineSegment(Vector(22.5, 9.5, 0), Vector(52.5, 9.5, 0)), False)
sketch11.addGeometry(Part.LineSegment(Vector(52.5, 9.5, 0), Vector(52.5, 2.9, 0)), False)
sketch11.addGeometry(Part.ArcOfCircle(Part.Circle(Vector(50, -43, 0), Vector(0, 0, 1), 46), math.radians(87), math.radians(112)), False)
sketch11.addGeometry(Part.LineSegment(Vector(32.5, -0.5, 0), Vector(32.5, 3, 0)), False)
sketch11.addGeometry(Part.LineSegment(Vector(32.5, 3, 0), Vector(22.5, 3, 0)), False)
sketch11.addGeometry(Part.LineSegment(Vector(22.5, 3, 0), Vector(22.5, 9.5, 0)), False)
sketch11.addGeometry(Part.LineSegment(Vector(50.5, 7.5, 0), Vector(24.5, 7.5, 0)), False)
sketch11.addGeometry(Part.LineSegment(Vector(24.5, 7.5, 0), Vector(24.5, 5, 0)), False)
sketch11.addGeometry(Part.LineSegment(Vector(24.5, 5, 0), Vector(34.5, 5, 0)), False)
sketch11.addGeometry(Part.LineSegment(Vector(34.5, 5, 0), Vector(34.5, 2.4, 0)), False)
sketch11.addGeometry(Part.ArcOfCircle(Part.Circle(Vector(50, -43, 0), Vector(0, 0, 1), 48), math.radians(89.4), math.radians(108.84)), False)
sketch11.addGeometry(Part.LineSegment(Vector(50.5, 5, 0), Vector(50.5, 7.5, 0)), False)
sketch11.addGeometry(Part.LineSegment(Vector(-32.5, 3, 0), Vector(-32.5, -0.5, 0)), False)
sketch11.addGeometry(Part.ArcOfCircle(Part.Circle(Vector(-50, -43, 0), Vector(0, 0, 1), 46), math.radians(68), math.radians(93)), False)
sketch11.addGeometry(Part.LineSegment(Vector(-52.5, 2.9, 0), Vector(-52.5, 9.5, 0)), False)
sketch11.addGeometry(Part.LineSegment(Vector(-52.5, 9.5, 0), Vector(-22.5, 9.5, 0)), False)
sketch11.addGeometry(Part.LineSegment(Vector(-22.5, 9.5, 0), Vector(-22.5, 3, 0)), False)
sketch11.addGeometry(Part.LineSegment(Vector(-22.5, 3, 0), Vector(-32.5, 3, 0)), False)
sketch11.addGeometry(Part.LineSegment(Vector(-34.5, 2.4, 0), Vector(-34.5, 5, 0)), False)
sketch11.addGeometry(Part.LineSegment(Vector(-34.5, 5, 0), Vector(-24.5, 5, 0)), False)
sketch11.addGeometry(Part.LineSegment(Vector(-24.5, 5, 0), Vector(-24.5, 7.5, 0)), False)
sketch11.addGeometry(Part.LineSegment(Vector(-24.5, 7.5, 0), Vector(-50.5, 7.5, 0)), False)
sketch11.addGeometry(Part.LineSegment(Vector(-50.5, 7.5, 0), Vector(-50.5, 5, 0)), False)
sketch11.addGeometry(Part.ArcOfCircle(Part.Circle(Vector(-50, -43, 0), Vector(0, 0, 1), 48), math.radians(71.16), math.radians(90.6)), False)
sketch11.addConstraint(Sketcher.Constraint("Coincident", 0, 2, 1, 1))
sketch11.addConstraint(Sketcher.Constraint("Coincident", 1, 2, 2, 1))
sketch11.addConstraint(Sketcher.Constraint("Coincident", 2, 2, 3, 1))
sketch11.addConstraint(Sketcher.Constraint("Coincident", 3, 2, 4, 1))
sketch11.addConstraint(Sketcher.Constraint("Coincident", 4, 2, 5, 1))
sketch11.addConstraint(Sketcher.Constraint("Coincident", 5, 2, 0, 1))
sketch11.addConstraint(Sketcher.Constraint("Coincident", 6, 2, 7, 1))
sketch11.addConstraint(Sketcher.Constraint("Coincident", 7, 2, 8, 1))
sketch11.addConstraint(Sketcher.Constraint("Coincident", 8, 2, 9, 1))
sketch11.addConstraint(Sketcher.Constraint("Coincident", 9, 2, 10, 2))
sketch11.addConstraint(Sketcher.Constraint("Coincident", 10, 1, 11, 1))
sketch11.addConstraint(Sketcher.Constraint("Coincident", 11, 2, 6, 1))
sketch11.addConstraint(Sketcher.Constraint("Coincident", 12, 2, 13, 1))
sketch11.addConstraint(Sketcher.Constraint("Coincident", 13, 2, 14, 1))
sketch11.addConstraint(Sketcher.Constraint("Coincident", 14, 2, 15, 1))
sketch11.addConstraint(Sketcher.Constraint("Coincident", 15, 2, 16, 1))
sketch11.addConstraint(Sketcher.Constraint("Coincident", 16, 2, 17, 1))
sketch11.addConstraint(Sketcher.Constraint("Coincident", 17, 2, 12, 1))
sketch11.addConstraint(Sketcher.Constraint("Coincident", 18, 2, 19, 1))
sketch11.addConstraint(Sketcher.Constraint("Coincident", 19, 2, 20, 1))
sketch11.addConstraint(Sketcher.Constraint("Coincident", 20, 2, 21, 1))
sketch11.addConstraint(Sketcher.Constraint("Coincident", 21, 2, 22, 1))
sketch11.addConstraint(Sketcher.Constraint("Coincident", 22, 2, 23, 2))
sketch11.addConstraint(Sketcher.Constraint("Coincident", 23, 1, 18, 1))
sketch11.addConstraint(Sketcher.Constraint("Horizontal", 0))
sketch11.addConstraint(Sketcher.Constraint("Vertical", 1))
sketch11.addConstraint(Sketcher.Constraint("Vertical", 3))
sketch11.addConstraint(Sketcher.Constraint("Horizontal", 4))
sketch11.addConstraint(Sketcher.Constraint("Vertical", 5))
sketch11.addConstraint(Sketcher.Constraint("Horizontal", 6))
sketch11.addConstraint(Sketcher.Constraint("Vertical", 7))
sketch11.addConstraint(Sketcher.Constraint("Horizontal", 8))
sketch11.addConstraint(Sketcher.Constraint("Vertical", 9))
sketch11.addConstraint(Sketcher.Constraint("Vertical", 11))
sketch11.addConstraint(Sketcher.Constraint("Vertical", 12))
sketch11.addConstraint(Sketcher.Constraint("Vertical", 14))
sketch11.addConstraint(Sketcher.Constraint("Horizontal", 15))
sketch11.addConstraint(Sketcher.Constraint("Vertical", 16))
sketch11.addConstraint(Sketcher.Constraint("Horizontal", 17))
sketch11.addConstraint(Sketcher.Constraint("Vertical", 18))
sketch11.addConstraint(Sketcher.Constraint("Horizontal", 19))
sketch11.addConstraint(Sketcher.Constraint("Vertical", 20))
sketch11.addConstraint(Sketcher.Constraint("Horizontal", 21))
sketch11.addConstraint(Sketcher.Constraint("Vertical", 22))
sketch11.addConstraint(Sketcher.Constraint("Coincident", 10, 3, 2, 3))
sketch11.addConstraint(Sketcher.Constraint("Coincident", 23, 3, 13, 3))
sketch11.addConstraint(Sketcher.Constraint("Equal", 2, 13))
sketch11.addConstraint(Sketcher.Constraint("Equal", 10, 23))
sketch11.addConstraint(Sketcher.Constraint("Symmetric", 2, 3, 13, 3, -2))
sketch11.addConstraint(Sketcher.Constraint("Symmetric", 0, 2, 14, 2, -2))
sketch11.addConstraint(Sketcher.Constraint("Symmetric", 4, 2, 16, 2, -2))
sketch11.addConstraint(Sketcher.Constraint("Symmetric", 8, 2, 18, 2, -2))
sketch11.addConstraint(Sketcher.Constraint("Symmetric", 6, 2, 20, 2, -2))
sketch11.addConstraint(Sketcher.Constraint("Horizontal", 2, 2, 12, 2))
sketch11.addConstraint(Sketcher.Constraint("Horizontal", 10, 1, 22, 2))
sketch11.addConstraint(Sketcher.Constraint("Equal", 4, 8))
sketch11.addConstraint(Sketcher.Constraint("Radius", 2, Q("46 mm")))
sketch11.addConstraint(Sketcher.Constraint("Radius", 10, Q("48 mm")))
sketch11.addConstraint(Sketcher.Constraint("DistanceX", 0, 1, 0, 2, Q("30 mm")))
sketch11.addConstraint(Sketcher.Constraint("DistanceX", 4, 2, 4, 1, Q("10 mm")))
sketch11.addConstraint(Sketcher.Constraint("DistanceX", 6, 2, 6, 1, Q("26 mm")))
sketch11.addConstraint(Sketcher.Constraint("DistanceY", 5, 1, 5, 2, Q("6.5 mm")))
sketch11.addConstraint(Sketcher.Constraint("DistanceY", 7, 2, 7, 1, Q("2.5 mm")))
sketch11.addConstraint(Sketcher.Constraint("DistanceX", -1, 1, 2, 3, Q("50 mm")))
sketch11.addConstraint(Sketcher.Constraint("DistanceY", 2, 3, -1, 1, Q("43 mm")))
sketch11.addConstraint(Sketcher.Constraint("DistanceY", -1, 1, 3, 2, Q("3 mm")))
sketch11.addConstraint(Sketcher.Constraint("DistanceY", -1, 1, 7, 2, Q("5 mm")))
sketch11.addConstraint(Sketcher.Constraint("DistanceX", 5, 2, 6, 2, Q("2 mm")))
sketch11.addConstraint(Sketcher.Constraint("DistanceX", 12, 2, 4, 2, Q("55 mm")))
pad4 = body.newObject("PartDesign::Pad", "Pad003")
pad4.Profile = sketch11
pad4.Length = 22.55
doc.recompute()

fillet = body.newObject("PartDesign::Fillet", "Fillet")
fillet.Base = (pad4, edges_at(pad4, [
    (32.5, 3, 17.275),
    (32.5, -0.459, 17.275),
    (52.5, 2.932, 17.275),
    (52.5, 9.5, 17.275),
    (24.5, 5, 17.275),
    (34.5, 5, 17.275),
    (34.5, 2.429, 17.275),
    (50.5, 4.997, 17.275),
    (50.5, 7.5, 17.275),
    (24.5, 7.5, 17.275),
    (-52.5, 2.932, 17.275),
    (-32.5, -0.459, 17.275),
    (-32.5, 3, 17.275),
    (-52.5, 9.5, 17.275),
    (-24.5, 5, 17.275),
    (-24.5, 7.5, 17.275),
    (-50.5, 7.5, 17.275),
    (-50.5, 4.997, 17.275),
    (-34.5, 2.429, 17.275),
    (-34.5, 5, 17.275),
]))
fillet.Radius = 1

doc.recompute()
